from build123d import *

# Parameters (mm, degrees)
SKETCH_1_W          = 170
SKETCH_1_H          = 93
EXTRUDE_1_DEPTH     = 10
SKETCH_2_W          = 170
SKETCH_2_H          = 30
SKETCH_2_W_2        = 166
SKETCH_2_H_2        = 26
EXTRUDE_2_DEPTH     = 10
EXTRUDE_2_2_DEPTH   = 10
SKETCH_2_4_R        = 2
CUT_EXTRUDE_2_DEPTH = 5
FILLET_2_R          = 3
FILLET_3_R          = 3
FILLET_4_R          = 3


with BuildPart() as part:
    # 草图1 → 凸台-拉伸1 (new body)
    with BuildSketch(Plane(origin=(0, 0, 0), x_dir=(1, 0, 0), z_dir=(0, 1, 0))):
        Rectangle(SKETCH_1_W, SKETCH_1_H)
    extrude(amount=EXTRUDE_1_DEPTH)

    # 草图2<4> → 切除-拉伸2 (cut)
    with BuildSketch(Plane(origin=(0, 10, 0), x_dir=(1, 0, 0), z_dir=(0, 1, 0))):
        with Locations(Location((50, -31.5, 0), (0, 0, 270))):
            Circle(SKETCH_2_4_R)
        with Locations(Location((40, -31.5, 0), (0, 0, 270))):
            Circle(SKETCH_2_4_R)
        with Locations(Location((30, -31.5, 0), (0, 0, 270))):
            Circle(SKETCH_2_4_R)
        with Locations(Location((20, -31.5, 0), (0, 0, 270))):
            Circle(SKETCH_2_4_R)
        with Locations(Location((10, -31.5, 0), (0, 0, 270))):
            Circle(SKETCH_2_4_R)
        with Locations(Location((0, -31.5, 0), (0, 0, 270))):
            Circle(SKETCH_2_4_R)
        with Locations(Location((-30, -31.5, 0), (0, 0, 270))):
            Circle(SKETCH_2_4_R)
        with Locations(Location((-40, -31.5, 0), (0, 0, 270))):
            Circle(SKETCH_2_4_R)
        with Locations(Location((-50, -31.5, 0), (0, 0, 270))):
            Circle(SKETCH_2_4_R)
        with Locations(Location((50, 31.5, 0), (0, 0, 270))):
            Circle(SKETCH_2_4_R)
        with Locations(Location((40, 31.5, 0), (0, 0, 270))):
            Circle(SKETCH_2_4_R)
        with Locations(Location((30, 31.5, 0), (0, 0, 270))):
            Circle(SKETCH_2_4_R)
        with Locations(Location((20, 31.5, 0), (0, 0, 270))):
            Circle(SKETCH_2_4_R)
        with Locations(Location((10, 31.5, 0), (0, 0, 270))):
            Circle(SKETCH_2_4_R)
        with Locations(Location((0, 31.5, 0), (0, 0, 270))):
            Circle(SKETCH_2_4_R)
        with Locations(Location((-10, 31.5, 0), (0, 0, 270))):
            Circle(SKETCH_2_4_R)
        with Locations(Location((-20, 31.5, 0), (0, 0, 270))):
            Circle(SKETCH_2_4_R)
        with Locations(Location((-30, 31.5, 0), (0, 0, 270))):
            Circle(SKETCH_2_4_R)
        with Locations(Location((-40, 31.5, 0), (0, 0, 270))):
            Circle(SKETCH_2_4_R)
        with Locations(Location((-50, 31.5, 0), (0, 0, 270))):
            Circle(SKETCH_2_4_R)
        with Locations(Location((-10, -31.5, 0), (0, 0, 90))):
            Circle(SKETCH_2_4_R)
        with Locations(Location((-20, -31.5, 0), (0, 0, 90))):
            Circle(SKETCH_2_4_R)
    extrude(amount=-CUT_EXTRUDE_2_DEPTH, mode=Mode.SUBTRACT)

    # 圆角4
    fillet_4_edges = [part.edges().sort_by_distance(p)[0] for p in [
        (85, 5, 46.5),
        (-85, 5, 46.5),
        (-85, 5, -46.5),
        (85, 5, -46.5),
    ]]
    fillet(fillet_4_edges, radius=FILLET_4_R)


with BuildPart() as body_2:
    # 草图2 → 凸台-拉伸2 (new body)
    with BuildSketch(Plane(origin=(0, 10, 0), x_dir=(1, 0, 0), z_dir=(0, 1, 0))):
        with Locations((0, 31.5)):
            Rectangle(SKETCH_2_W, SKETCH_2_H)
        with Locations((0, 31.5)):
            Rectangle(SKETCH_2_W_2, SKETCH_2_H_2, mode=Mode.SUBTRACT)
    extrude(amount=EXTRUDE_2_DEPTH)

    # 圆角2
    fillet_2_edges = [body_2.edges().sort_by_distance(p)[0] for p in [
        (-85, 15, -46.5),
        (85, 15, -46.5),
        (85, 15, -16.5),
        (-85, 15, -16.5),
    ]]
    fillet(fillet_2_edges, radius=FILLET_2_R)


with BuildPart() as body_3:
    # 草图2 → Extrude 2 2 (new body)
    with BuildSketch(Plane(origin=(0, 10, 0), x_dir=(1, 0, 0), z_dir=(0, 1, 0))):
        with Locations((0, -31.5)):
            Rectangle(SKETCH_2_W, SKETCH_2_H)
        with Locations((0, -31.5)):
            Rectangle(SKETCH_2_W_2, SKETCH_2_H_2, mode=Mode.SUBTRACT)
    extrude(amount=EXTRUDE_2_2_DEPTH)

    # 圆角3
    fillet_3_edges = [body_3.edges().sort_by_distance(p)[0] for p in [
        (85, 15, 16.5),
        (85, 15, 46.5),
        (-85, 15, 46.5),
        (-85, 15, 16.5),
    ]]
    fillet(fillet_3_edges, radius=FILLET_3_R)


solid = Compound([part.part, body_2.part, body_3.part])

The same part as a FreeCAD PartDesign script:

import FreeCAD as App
import Part
import Sketcher


def edges_at(feature, points):
    """Names of the edges that pass closest to the given points."""
    edges = feature.Shape.Edges
    near = lambda p: min(range(len(edges)), key=lambda i: edges[i].distToShape(Part.Vertex(*p))[0])
    return sorted({f"Edge{near(p) + 1}" for p in points})


def add_polygon(sketch, points):
    """Adds a closed chain of lines whose ends are joined by coincident constraints."""
    first, n = sketch.GeometryCount, len(points)
    for a, b in zip(points, points[1:] + points[:1]):
        sketch.addGeometry(Part.LineSegment(App.Vector(*a, 0), App.Vector(*b, 0)), False)
    for i in range(n):
        sketch.addConstraint(Sketcher.Constraint("Coincident", first + i, 2, first + (i + 1) % n, 1))

doc = App.newDocument("Part")
body = doc.addObject("PartDesign::Body", "Body")

# Sketch on XZ plane
sketch1 = doc.addObject("Sketcher::SketchObject", "Sketch")
body.addObject(sketch1)
sketch1.AttachmentSupport = (doc.XZ_Plane, [""])
sketch1.MapMode = "FlatFace"
add_polygon(sketch1, [(-85, -46.5), (-85, 46.5), (85, 46.5), (85, -46.5)])  # lines 0-3
sketch1.addConstraint([
    Sketcher.Constraint("Vertical", 0),
    Sketcher.Constraint("Horizontal", 1),
    Sketcher.Constraint("Vertical", 2),
    Sketcher.Constraint("Horizontal", 3),
    Sketcher.Constraint("Symmetric", 0, 2, 2, 2, -1, 1),
    Sketcher.Constraint("DistanceX", 1, 1, 1, 2, 170.0),
    Sketcher.Constraint("DistanceY", 0, 1, 0, 2, 93.0),
])
pad1 = doc.addObject("PartDesign::Pad", "Pad")
body.addObject(pad1)
pad1.Profile = sketch1
pad1.Length = 10
pad1.Reversed = True

# Sketch on XZ plane
sketch2 = doc.addObject("Sketcher::SketchObject", "Sketch001")
body.addObject(sketch2)
sketch2.AttachmentSupport = (doc.XZ_Plane, [""])
sketch2.MapMode = "FlatFace"
sketch2.AttachmentOffset = App.Placement(App.Vector(0, 0, -10), App.Rotation())
sketch2.addGeometry([
    Part.Circle(App.Vector(50, 31.5, 0), App.Vector(0, 0, 1), 2),  # 0
    Part.Circle(App.Vector(40, 31.5, 0), App.Vector(0, 0, 1), 2),  # 1
    Part.Circle(App.Vector(30, 31.5, 0), App.Vector(0, 0, 1), 2),  # 2
    Part.Circle(App.Vector(20, 31.5, 0), App.Vector(0, 0, 1), 2),  # 3
    Part.Circle(App.Vector(10, 31.5, 0), App.Vector(0, 0, 1), 2),  # 4
    Part.Circle(App.Vector(0, 31.5, 0), App.Vector(0, 0, 1), 2),  # 5
    Part.Circle(App.Vector(-30, 31.5, 0), App.Vector(0, 0, 1), 2),  # 6
    Part.Circle(App.Vector(-40, 31.5, 0), App.Vector(0, 0, 1), 2),  # 7
    Part.Circle(App.Vector(-50, 31.5, 0), App.Vector(0, 0, 1), 2),  # 8
    Part.Circle(App.Vector(50, -31.5, 0), App.Vector(0, 0, 1), 2),  # 9
    Part.Circle(App.Vector(40, -31.5, 0), App.Vector(0, 0, 1), 2),  # 10
    Part.Circle(App.Vector(30, -31.5, 0), App.Vector(0, 0, 1), 2),  # 11
    Part.Circle(App.Vector(20, -31.5, 0), App.Vector(0, 0, 1), 2),  # 12
    Part.Circle(App.Vector(10, -31.5, 0), App.Vector(0, 0, 1), 2),  # 13
    Part.Circle(App.Vector(0, -31.5, 0), App.Vector(0, 0, 1), 2),  # 14
    Part.Circle(App.Vector(-10, -31.5, 0), App.Vector(0, 0, 1), 2),  # 15
    Part.Circle(App.Vector(-20, -31.5, 0), App.Vector(0, 0, 1), 2),  # 16
    Part.Circle(App.Vector(-30, -31.5, 0), App.Vector(0, 0, 1), 2),  # 17
    Part.Circle(App.Vector(-40, -31.5, 0), App.Vector(0, 0, 1), 2),  # 18
    Part.Circle(App.Vector(-50, -31.5, 0), App.Vector(0, 0, 1), 2),  # 19
    Part.Circle(App.Vector(-10, 31.5, 0), App.Vector(0, 0, 1), 2),  # 20
    Part.Circle(App.Vector(-20, 31.5, 0), App.Vector(0, 0, 1), 2),  # 21
], False)
sketch2.addConstraint([
    Sketcher.Constraint("Equal", 0, 1),
    Sketcher.Constraint("Equal", 1, 2),
    Sketcher.Constraint("Equal", 2, 3),
    Sketcher.Constraint("Equal", 3, 4),
    Sketcher.Constraint("Equal", 4, 5),
    Sketcher.Constraint("Equal", 5, 6),
    Sketcher.Constraint("Equal", 6, 7),
    Sketcher.Constraint("Equal", 7, 8),
    Sketcher.Constraint("Equal", 8, 9),
    Sketcher.Constraint("Equal", 9, 10),
    Sketcher.Constraint("Equal", 10, 11),
    Sketcher.Constraint("Equal", 11, 12),
    Sketcher.Constraint("Equal", 12, 13),
    Sketcher.Constraint("Equal", 13, 14),
    Sketcher.Constraint("Equal", 14, 15),
    Sketcher.Constraint("Equal", 15, 16),
    Sketcher.Constraint("Equal", 16, 17),
    Sketcher.Constraint("Equal", 17, 18),
    Sketcher.Constraint("Equal", 18, 19),
    Sketcher.Constraint("Equal", 19, 20),
    Sketcher.Constraint("Equal", 20, 21),
    Sketcher.Constraint("Symmetric", 8, 3, 9, 3, -1, 1),
    Sketcher.Constraint("Symmetric", 7, 3, 10, 3, -1, 1),
    Sketcher.Constraint("Symmetric", 6, 3, 11, 3, -1, 1),
    Sketcher.Constraint("Symmetric", 5, 3, 14, 3, -1, 1),
    Sketcher.Constraint("Symmetric", 4, 3, 15, 3, -1, 1),
    Sketcher.Constraint("Symmetric", 3, 3, 16, 3, -1, 1),
    Sketcher.Constraint("Symmetric", 2, 3, 17, 3, -1, 1),
    Sketcher.Constraint("Symmetric", 1, 3, 18, 3, -1, 1),
    Sketcher.Constraint("Symmetric", 0, 3, 19, 3, -1, 1),
    Sketcher.Constraint("Symmetric", 13, 3, 20, 3, -1, 1),
    Sketcher.Constraint("Symmetric", 12, 3, 21, 3, -1, 1),
    Sketcher.Constraint("Symmetric", 2, 3, 6, 3, -2),
    Sketcher.Constraint("Symmetric", 1, 3, 7, 3, -2),
    Sketcher.Constraint("Symmetric", 0, 3, 8, 3, -2),
    Sketcher.Constraint("Symmetric", 13, 3, 15, 3, -2),
    Sketcher.Constraint("Symmetric", 12, 3, 16, 3, -2),
    Sketcher.Constraint("PointOnObject", 5, 3, -2),
    Sketcher.Constraint("Horizontal", 0, 3, 1, 3),
    Sketcher.Constraint("Horizontal", 1, 3, 2, 3),
    Sketcher.Constraint("Horizontal", 2, 3, 3, 3),
    Sketcher.Constraint("Horizontal", 3, 3, 4, 3),
    Sketcher.Constraint("Horizontal", 4, 3, 5, 3),
    Sketcher.Constraint("Diameter", 0, 4.0),
    Sketcher.Constraint("DistanceX", -1, 1, 0, 3, 50.0),
    Sketcher.Constraint("DistanceX", -1, 1, 1, 3, 40.0),
    Sketcher.Constraint("DistanceX", -1, 1, 2, 3, 30.0),
    Sketcher.Constraint("DistanceX", -1, 1, 3, 3, 20.0),
    Sketcher.Constraint("DistanceX", -1, 1, 4, 3, 10.0),
    Sketcher.Constraint("DistanceY", 9, 3, 0, 3, 63.0),
])
pocket1 = doc.addObject("PartDesign::Pocket", "Pocket")
body.addObject(pocket1)
pocket1.Profile = sketch2
pocket1.Length = 5
pocket1.Reversed = True
doc.recompute()

fillet = doc.addObject("PartDesign::Fillet", "Fillet")
body.addObject(fillet)
fillet.Base = (pocket1, edges_at(pocket1, [
    (85, 5, 46.5),
    (-85, 5, 46.5),
    (-85, 5, -46.5),
    (85, 5, -46.5),
]))
fillet.Radius = 3
body2 = doc.addObject("PartDesign::Body", "Body001")

# Sketch on XZ plane
sketch3 = doc.addObject("Sketcher::SketchObject", "Sketch002")
body2.addObject(sketch3)
sketch3.AttachmentSupport = (doc.getObject("XZ_Plane001"), [""])
sketch3.MapMode = "FlatFace"
sketch3.AttachmentOffset = App.Placement(App.Vector(0, 0, -10), App.Rotation())
add_polygon(sketch3, [(-85, -46.5), (-85, -16.5), (85, -16.5), (85, -46.5)])  # lines 0-3
add_polygon(sketch3, [(83, -18.5), (-83, -18.5), (-83, -44.5), (83, -44.5)])  # lines 4-7
sketch3.addConstraint([
    Sketcher.Constraint("Vertical", 0),
    Sketcher.Constraint("Horizontal", 1),
    Sketcher.Constraint("Vertical", 2),
    Sketcher.Constraint("Horizontal", 3),
    Sketcher.Constraint("Horizontal", 4),
    Sketcher.Constraint("Vertical", 5),
    Sketcher.Constraint("Horizontal", 6),
    Sketcher.Constraint("Vertical", 7),
    Sketcher.Constraint("DistanceX", 1, 1, 1, 2, 170.0),
    Sketcher.Constraint("DistanceX", 4, 2, 4, 1, 166.0),
    Sketcher.Constraint("DistanceY", 0, 1, 0, 2, 30.0),
    Sketcher.Constraint("DistanceY", 5, 2, 5, 1, 26.0),
    Sketcher.Constraint("DistanceX", 0, 2, -1, 1, 85.0),
    Sketcher.Constraint("DistanceX", 4, 2, -1, 1, 83.0),
    Sketcher.Constraint("DistanceY", 4, 2, 0, 2, 2.0),
    Sketcher.Constraint("DistanceY", 0, 2, -1, 1, 16.5),
])
pad2 = doc.addObject("PartDesign::Pad", "Pad001")
body2.addObject(pad2)
pad2.Profile = sketch3
pad2.Length = 10
pad2.Reversed = True
doc.recompute()

fillet2 = doc.addObject("PartDesign::Fillet", "Fillet001")
body2.addObject(fillet2)
fillet2.Base = (pad2, edges_at(pad2, [
    (-85, 15, -46.5),
    (85, 15, -46.5),
    (85, 15, -16.5),
    (-85, 15, -16.5),
]))
fillet2.Radius = 3
body3 = doc.addObject("PartDesign::Body", "Body002")

# Sketch on XZ plane
sketch4 = doc.addObject("Sketcher::SketchObject", "Sketch003")
body3.addObject(sketch4)
sketch4.AttachmentSupport = (doc.getObject("XZ_Plane002"), [""])
sketch4.MapMode = "FlatFace"
sketch4.AttachmentOffset = App.Placement(App.Vector(0, 0, -10), App.Rotation())
add_polygon(sketch4, [(-85, 16.5), (-85, 46.5), (85, 46.5), (85, 16.5)])  # lines 0-3
add_polygon(sketch4, [(83, 44.5), (-83, 44.5), (-83, 18.5), (83, 18.5)])  # lines 4-7
sketch4.addConstraint([
    Sketcher.Constraint("Vertical", 0),
    Sketcher.Constraint("Horizontal", 1),
    Sketcher.Constraint("Vertical", 2),
    Sketcher.Constraint("Horizontal", 3),
    Sketcher.Constraint("Horizontal", 4),
    Sketcher.Constraint("Vertical", 5),
    Sketcher.Constraint("Horizontal", 6),
    Sketcher.Constraint("Vertical", 7),
    Sketcher.Constraint("DistanceX", 1, 1, 1, 2, 170.0),
    Sketcher.Constraint("DistanceX", 4, 2, 4, 1, 166.0),
    Sketcher.Constraint("DistanceY", 0, 1, 0, 2, 30.0),
    Sketcher.Constraint("DistanceY", 5, 2, 5, 1, 26.0),
    Sketcher.Constraint("DistanceX", 0, 2, -1, 1, 85.0),
    Sketcher.Constraint("DistanceX", 4, 2, -1, 1, 83.0),
    Sketcher.Constraint("DistanceY", 4, 2, 0, 2, 2.0),
    Sketcher.Constraint("DistanceY", -1, 1, 0, 2, 46.5),
])
pad3 = doc.addObject("PartDesign::Pad", "Pad002")
body3.addObject(pad3)
pad3.Profile = sketch4
pad3.Length = 10
pad3.Reversed = True
doc.recompute()

fillet3 = doc.addObject("PartDesign::Fillet", "Fillet002")
body3.addObject(fillet3)
fillet3.Base = (pad3, edges_at(pad3, [
    (85, 15, 16.5),
    (85, 15, 46.5),
    (-85, 15, 46.5),
    (-85, 15, 16.5),
]))
fillet3.Radius = 3

doc.recompute()
